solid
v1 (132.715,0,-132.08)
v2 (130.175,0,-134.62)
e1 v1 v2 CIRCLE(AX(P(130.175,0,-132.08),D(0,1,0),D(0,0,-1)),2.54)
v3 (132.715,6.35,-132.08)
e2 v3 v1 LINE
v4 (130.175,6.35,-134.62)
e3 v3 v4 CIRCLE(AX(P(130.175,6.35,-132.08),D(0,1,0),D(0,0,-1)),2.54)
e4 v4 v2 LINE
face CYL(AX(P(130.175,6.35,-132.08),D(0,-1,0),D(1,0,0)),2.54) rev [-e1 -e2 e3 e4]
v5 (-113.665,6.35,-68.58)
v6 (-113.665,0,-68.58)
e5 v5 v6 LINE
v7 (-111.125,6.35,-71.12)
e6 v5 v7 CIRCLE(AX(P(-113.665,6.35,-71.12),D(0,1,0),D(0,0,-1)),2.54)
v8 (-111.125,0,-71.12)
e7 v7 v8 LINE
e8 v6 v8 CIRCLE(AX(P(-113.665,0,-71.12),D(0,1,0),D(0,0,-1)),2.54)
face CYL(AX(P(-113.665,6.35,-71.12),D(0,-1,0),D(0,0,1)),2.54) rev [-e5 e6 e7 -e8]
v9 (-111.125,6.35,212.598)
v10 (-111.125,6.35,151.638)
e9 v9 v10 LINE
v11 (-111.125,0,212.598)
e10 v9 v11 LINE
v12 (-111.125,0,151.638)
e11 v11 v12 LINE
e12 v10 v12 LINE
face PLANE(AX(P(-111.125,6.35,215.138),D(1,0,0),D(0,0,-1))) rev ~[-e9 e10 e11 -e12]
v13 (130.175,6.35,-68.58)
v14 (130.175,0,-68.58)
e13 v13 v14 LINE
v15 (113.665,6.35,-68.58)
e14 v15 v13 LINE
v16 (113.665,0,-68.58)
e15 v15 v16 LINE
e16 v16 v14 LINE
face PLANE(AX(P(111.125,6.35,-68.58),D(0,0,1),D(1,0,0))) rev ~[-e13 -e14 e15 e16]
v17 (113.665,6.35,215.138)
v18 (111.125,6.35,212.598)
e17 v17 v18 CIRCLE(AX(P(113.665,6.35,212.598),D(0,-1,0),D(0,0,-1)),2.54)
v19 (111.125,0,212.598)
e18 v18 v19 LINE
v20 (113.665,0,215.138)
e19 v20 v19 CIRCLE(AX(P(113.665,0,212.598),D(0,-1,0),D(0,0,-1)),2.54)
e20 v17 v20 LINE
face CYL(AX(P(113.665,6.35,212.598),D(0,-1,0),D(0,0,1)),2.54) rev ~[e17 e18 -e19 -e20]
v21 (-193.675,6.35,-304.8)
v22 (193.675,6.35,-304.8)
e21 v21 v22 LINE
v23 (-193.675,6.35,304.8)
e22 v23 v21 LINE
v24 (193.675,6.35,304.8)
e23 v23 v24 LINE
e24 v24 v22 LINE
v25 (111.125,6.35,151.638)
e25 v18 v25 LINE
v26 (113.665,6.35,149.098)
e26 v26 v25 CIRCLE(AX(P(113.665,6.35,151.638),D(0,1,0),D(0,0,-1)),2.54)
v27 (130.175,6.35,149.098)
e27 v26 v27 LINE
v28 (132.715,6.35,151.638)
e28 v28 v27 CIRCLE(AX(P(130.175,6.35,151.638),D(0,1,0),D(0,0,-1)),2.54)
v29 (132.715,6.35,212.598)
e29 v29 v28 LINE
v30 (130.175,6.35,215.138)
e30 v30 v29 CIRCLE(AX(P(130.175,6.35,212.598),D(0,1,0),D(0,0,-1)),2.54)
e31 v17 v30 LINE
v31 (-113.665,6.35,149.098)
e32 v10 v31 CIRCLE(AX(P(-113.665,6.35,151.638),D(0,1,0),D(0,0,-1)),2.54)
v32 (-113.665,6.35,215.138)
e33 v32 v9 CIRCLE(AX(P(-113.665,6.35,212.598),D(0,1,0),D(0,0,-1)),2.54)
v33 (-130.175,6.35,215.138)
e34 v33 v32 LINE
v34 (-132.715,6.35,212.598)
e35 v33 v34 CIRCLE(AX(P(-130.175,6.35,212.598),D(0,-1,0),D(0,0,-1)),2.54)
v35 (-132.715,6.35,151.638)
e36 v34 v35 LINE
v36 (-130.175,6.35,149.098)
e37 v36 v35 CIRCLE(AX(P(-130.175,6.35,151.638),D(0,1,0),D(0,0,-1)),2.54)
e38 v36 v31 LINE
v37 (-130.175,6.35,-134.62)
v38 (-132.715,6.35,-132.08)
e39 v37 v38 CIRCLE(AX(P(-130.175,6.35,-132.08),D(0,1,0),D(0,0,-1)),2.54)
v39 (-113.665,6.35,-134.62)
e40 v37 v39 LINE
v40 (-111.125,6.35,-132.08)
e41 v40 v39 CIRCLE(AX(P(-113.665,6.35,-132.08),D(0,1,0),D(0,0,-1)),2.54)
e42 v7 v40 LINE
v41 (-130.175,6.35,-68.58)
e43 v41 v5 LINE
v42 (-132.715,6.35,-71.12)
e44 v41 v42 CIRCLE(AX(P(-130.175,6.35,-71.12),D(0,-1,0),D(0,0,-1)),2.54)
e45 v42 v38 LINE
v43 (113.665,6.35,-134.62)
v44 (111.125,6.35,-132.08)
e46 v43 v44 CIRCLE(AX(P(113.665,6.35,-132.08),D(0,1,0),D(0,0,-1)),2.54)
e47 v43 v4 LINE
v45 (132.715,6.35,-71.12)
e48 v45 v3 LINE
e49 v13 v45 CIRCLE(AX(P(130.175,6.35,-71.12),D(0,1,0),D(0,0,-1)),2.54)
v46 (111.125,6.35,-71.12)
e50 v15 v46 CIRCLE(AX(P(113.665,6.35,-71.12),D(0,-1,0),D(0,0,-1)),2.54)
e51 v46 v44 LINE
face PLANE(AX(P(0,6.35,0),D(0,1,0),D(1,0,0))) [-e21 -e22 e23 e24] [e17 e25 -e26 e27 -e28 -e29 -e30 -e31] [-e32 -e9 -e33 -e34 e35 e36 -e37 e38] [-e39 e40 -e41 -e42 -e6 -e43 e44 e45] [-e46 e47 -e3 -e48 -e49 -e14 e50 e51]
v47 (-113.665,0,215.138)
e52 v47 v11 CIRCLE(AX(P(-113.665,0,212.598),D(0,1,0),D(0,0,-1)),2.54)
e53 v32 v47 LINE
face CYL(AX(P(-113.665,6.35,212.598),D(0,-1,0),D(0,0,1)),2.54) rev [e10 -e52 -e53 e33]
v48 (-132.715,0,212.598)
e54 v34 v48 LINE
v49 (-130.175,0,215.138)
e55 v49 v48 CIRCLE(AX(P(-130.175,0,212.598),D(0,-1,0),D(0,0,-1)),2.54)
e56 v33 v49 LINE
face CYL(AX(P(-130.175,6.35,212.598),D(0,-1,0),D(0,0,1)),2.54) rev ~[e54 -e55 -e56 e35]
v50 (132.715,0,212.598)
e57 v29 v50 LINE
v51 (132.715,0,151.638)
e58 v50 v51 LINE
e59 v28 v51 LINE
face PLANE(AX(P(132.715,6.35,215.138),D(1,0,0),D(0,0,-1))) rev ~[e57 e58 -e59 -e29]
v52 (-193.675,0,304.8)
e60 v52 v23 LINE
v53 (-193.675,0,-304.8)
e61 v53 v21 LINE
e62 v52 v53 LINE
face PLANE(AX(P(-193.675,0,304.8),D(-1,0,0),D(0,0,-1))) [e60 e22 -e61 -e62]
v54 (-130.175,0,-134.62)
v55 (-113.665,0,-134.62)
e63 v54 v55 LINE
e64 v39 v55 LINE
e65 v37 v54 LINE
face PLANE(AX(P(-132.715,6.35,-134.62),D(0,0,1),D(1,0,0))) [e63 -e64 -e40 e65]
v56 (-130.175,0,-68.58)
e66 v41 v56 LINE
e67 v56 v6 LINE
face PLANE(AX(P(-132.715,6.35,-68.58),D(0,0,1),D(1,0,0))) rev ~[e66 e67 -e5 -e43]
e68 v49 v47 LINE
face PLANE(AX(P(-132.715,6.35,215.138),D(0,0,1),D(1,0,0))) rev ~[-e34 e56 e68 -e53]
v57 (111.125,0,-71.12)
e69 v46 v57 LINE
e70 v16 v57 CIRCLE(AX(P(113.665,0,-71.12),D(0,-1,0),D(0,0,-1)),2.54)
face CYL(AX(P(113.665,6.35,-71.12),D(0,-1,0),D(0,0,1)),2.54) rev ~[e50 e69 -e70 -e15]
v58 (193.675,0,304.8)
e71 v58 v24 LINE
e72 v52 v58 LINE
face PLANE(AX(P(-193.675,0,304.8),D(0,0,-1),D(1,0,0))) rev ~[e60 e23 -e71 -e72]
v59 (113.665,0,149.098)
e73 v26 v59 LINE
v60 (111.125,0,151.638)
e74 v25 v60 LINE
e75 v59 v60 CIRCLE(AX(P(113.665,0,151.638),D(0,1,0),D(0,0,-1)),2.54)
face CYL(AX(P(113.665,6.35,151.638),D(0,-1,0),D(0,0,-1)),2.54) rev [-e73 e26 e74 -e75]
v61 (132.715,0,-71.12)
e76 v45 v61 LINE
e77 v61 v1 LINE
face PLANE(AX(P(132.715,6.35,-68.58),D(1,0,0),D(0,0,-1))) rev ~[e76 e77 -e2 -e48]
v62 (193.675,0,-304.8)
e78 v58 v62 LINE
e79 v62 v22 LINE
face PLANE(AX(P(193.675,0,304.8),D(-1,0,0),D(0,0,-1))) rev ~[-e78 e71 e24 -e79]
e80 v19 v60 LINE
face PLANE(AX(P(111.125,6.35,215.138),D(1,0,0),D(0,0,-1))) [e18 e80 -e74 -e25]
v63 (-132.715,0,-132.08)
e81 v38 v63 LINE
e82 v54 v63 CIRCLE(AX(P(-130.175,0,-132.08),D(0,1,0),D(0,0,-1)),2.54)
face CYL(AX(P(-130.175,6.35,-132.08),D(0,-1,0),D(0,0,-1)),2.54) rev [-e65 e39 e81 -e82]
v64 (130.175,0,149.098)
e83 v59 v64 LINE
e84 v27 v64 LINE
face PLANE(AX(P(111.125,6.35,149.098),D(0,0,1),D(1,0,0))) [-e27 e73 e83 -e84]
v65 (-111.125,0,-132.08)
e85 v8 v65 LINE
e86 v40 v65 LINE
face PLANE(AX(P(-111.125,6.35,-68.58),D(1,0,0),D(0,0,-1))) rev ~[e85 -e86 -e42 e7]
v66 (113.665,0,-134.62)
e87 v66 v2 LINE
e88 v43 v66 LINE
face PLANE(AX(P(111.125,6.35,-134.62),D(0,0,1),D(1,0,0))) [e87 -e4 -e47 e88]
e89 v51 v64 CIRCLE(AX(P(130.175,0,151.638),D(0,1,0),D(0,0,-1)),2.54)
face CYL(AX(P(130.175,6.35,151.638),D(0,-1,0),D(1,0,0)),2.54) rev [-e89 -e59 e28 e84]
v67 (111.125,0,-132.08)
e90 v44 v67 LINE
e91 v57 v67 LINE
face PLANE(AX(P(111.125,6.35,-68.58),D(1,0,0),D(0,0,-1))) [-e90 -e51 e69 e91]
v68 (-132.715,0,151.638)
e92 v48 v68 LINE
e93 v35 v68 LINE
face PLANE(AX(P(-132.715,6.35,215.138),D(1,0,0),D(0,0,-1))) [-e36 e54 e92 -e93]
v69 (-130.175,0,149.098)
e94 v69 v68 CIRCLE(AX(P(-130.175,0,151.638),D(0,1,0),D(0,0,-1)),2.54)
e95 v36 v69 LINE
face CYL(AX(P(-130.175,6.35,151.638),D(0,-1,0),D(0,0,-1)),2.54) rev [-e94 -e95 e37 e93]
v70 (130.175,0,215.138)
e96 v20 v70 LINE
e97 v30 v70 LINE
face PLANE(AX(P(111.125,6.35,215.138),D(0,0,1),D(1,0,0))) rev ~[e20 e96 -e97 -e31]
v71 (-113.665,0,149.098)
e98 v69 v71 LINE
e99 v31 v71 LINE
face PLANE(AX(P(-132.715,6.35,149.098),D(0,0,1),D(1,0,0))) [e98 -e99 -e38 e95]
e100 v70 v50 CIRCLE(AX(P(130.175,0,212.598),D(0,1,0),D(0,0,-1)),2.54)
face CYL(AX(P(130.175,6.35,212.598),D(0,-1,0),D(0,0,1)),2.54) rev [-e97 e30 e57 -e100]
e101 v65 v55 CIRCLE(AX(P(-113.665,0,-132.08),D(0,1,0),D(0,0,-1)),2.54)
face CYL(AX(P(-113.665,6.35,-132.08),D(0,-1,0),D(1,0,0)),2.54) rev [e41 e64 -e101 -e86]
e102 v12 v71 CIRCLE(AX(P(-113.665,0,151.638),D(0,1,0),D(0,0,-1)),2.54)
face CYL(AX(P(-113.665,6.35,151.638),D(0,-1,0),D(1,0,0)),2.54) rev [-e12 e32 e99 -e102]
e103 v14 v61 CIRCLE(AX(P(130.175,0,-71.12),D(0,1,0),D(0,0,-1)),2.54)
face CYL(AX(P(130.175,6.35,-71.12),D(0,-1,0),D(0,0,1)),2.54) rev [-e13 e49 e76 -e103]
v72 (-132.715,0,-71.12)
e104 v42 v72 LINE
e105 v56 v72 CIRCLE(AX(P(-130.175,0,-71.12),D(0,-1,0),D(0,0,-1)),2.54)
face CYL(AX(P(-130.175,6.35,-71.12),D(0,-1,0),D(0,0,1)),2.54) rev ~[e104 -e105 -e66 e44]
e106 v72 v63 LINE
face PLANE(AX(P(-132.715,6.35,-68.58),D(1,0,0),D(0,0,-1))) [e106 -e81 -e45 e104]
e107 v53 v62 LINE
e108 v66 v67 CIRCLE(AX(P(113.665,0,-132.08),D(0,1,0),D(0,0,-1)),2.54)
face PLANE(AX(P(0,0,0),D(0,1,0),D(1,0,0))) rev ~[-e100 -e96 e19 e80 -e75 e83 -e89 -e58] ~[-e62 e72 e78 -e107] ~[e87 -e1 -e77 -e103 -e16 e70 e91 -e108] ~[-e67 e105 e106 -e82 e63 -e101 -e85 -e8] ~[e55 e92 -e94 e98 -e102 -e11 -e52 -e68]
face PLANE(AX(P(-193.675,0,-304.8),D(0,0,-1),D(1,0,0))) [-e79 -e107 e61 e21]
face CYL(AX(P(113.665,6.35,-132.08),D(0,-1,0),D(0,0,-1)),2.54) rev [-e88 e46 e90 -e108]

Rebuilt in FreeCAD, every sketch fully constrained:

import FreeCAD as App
import Part
import Sketcher
from FreeCAD import Vector
Q = App.Units.Quantity


def edges_at(feature, points):
    """Names of the edges that pass closest to the given points."""
    edges = feature.Shape.Edges
    near = lambda p: min(range(len(edges)), key=lambda i: edges[i].distToShape(Part.Vertex(*p))[0])
    return sorted({f"Edge{near(p) + 1}" for p in points})

doc = App.newDocument("Part")
body = doc.addObject("PartDesign::Body", "Body")

# Sketch on XZ plane
sketch1 = body.newObject("Sketcher::SketchObject", "Sketch")
sketch1.AttachmentSupport = (doc.getObject("XZ_Plane"), [""])
sketch1.MapMode = "FlatFace"
sketch1.addGeometry(Part.LineSegment(Vector(-193.675, -304.8, 0), Vector(-193.675, 304.8, 0)), False)
sketch1.addGeometry(Part.LineSegment(Vector(-193.675, 304.8, 0), Vector(193.675, 304.8, 0)), False)
sketch1.addGeometry(Part.LineSegment(Vector(193.675, 304.8, 0), Vector(193.675, -304.8, 0)), False)
sketch1.addGeometry(Part.LineSegment(Vector(193.675, -304.8, 0), Vector(-193.675, -304.8, 0)), False)
sketch1.addConstraint(Sketcher.Constraint("Coincident", 0, 2, 1, 1))
sketch1.addConstraint(Sketcher.Constraint("Coincident", 1, 2, 2, 1))
sketch1.addConstraint(Sketcher.Constraint("Coincident", 2, 2, 3, 1))
sketch1.addConstraint(Sketcher.Constraint("Coincident", 3, 2, 0, 1))
sketch1.addConstraint(Sketcher.Constraint("Vertical", 0))
sketch1.addConstraint(Sketcher.Constraint("Horizontal", 1))
sketch1.addConstraint(Sketcher.Constraint("Vertical", 2))
sketch1.addConstraint(Sketcher.Constraint("Horizontal", 3))
sketch1.addConstraint(Sketcher.Constraint("Symmetric", 0, 2, 2, 2, -1, 1))
sketch1.addConstraint(Sketcher.Constraint("DistanceY", 0, 1, 0, 2, Q("24 in")))
sketch1.addConstraint(Sketcher.Constraint("DistanceX", 1, 1, 1, 2, Q("15.25 in")))
pad1 = body.newObject("PartDesign::Pad", "Pad")
pad1.Profile = sketch1
pad1.Length = Q("0.25 in")
pad1.Reversed = True

# Sketch on XZ plane
sketch2 = body.newObject("Sketcher::SketchObject", "Sketch001")
sketch2.AttachmentSupport = (doc.getObject("XZ_Plane"), [""])
sketch2.MapMode = "FlatFace"
sketch2.AttachmentOffset = App.Placement(Vector(0, 0, -0.25 * 25.4), App.Rotation())
sketch2.addGeometry(Part.LineSegment(Vector(111.125, 149.098, 0), Vector(111.125, 215.138, 0)), False)
sketch2.addGeometry(Part.LineSegment(Vector(111.125, 215.138, 0), Vector(132.715, 215.138, 0)), False)
sketch2.addGeometry(Part.LineSegment(Vector(132.715, 215.138, 0), Vector(132.715, 149.098, 0)), False)
sketch2.addGeometry(Part.LineSegment(Vector(132.715, 149.098, 0), Vector(111.125, 149.098, 0)), False)
sketch2.addGeometry(Part.LineSegment(Vector(111.125, -134.62, 0), Vector(111.125, -68.58, 0)), False)
sketch2.addGeometry(Part.LineSegment(Vector(111.125, -68.58, 0), Vector(132.715, -68.58, 0)), False)
sketch2.addGeometry(Part.LineSegment(Vector(132.715, -68.58, 0), Vector(132.715, -134.62, 0)), False)
sketch2.addGeometry(Part.LineSegment(Vector(132.715, -134.62, 0), Vector(111.125, -134.62, 0)), False)
sketch2.addGeometry(Part.LineSegment(Vector(-132.715, 149.098, 0), Vector(-132.715, 215.138, 0)), False)
sketch2.addGeometry(Part.LineSegment(Vector(-132.715, 215.138, 0), Vector(-111.125, 215.138, 0)), False)
sketch2.addGeometry(Part.LineSegment(Vector(-111.125, 215.138, 0), Vector(-111.125, 149.098, 0)), False)
sketch2.addGeometry(Part.LineSegment(Vector(-111.125, 149.098, 0), Vector(-132.715, 149.098, 0)), False)
sketch2.addGeometry(Part.LineSegment(Vector(-132.715, -134.62, 0), Vector(-132.715, -68.58, 0)), False)
sketch2.addGeometry(Part.LineSegment(Vector(-132.715, -68.58, 0), Vector(-111.125, -68.58, 0)), False)
sketch2.addGeometry(Part.LineSegment(Vector(-111.125, -68.58, 0), Vector(-111.125, -134.62, 0)), False)
sketch2.addGeometry(Part.LineSegment(Vector(-111.125, -134.62, 0), Vector(-132.715, -134.62, 0)), False)
sketch2.addConstraint(Sketcher.Constraint("Coincident", 0, 2, 1, 1))
sketch2.addConstraint(Sketcher.Constraint("Coincident", 1, 2, 2, 1))
sketch2.addConstraint(Sketcher.Constraint("Coincident", 2, 2, 3, 1))
sketch2.addConstraint(Sketcher.Constraint("Coincident", 3, 2, 0, 1))
sketch2.addConstraint(Sketcher.Constraint("Coincident", 4, 2, 5, 1))
sketch2.addConstraint(Sketcher.Constraint("Coincident", 5, 2, 6, 1))
sketch2.addConstraint(Sketcher.Constraint("Coincident", 6, 2, 7, 1))
sketch2.addConstraint(Sketcher.Constraint("Coincident", 7, 2, 4, 1))
sketch2.addConstraint(Sketcher.Constraint("Coincident", 8, 2, 9, 1))
sketch2.addConstraint(Sketcher.Constraint("Coincident", 9, 2, 10, 1))
sketch2.addConstraint(Sketcher.Constraint("Coincident", 10, 2, 11, 1))
sketch2.addConstraint(Sketcher.Constraint("Coincident", 11, 2, 8, 1))
sketch2.addConstraint(Sketcher.Constraint("Coincident", 12, 2, 13, 1))
sketch2.addConstraint(Sketcher.Constraint("Coincident", 13, 2, 14, 1))
sketch2.addConstraint(Sketcher.Constraint("Coincident", 14, 2, 15, 1))
sketch2.addConstraint(Sketcher.Constraint("Coincident", 15, 2, 12, 1))
sketch2.addConstraint(Sketcher.Constraint("Vertical", 0))
sketch2.addConstraint(Sketcher.Constraint("Horizontal", 1))
sketch2.addConstraint(Sketcher.Constraint("Vertical", 2))
sketch2.addConstraint(Sketcher.Constraint("Horizontal", 3))
sketch2.addConstraint(Sketcher.Constraint("Vertical", 4))
sketch2.addConstraint(Sketcher.Constraint("Horizontal", 5))
sketch2.addConstraint(Sketcher.Constraint("Vertical", 6))
sketch2.addConstraint(Sketcher.Constraint("Horizontal", 7))
sketch2.addConstraint(Sketcher.Constraint("Vertical", 8))
sketch2.addConstraint(Sketcher.Constraint("Horizontal", 9))
sketch2.addConstraint(Sketcher.Constraint("Vertical", 10))
sketch2.addConstraint(Sketcher.Constraint("Horizontal", 11))
sketch2.addConstraint(Sketcher.Constraint("Vertical", 12))
sketch2.addConstraint(Sketcher.Constraint("Horizontal", 13))
sketch2.addConstraint(Sketcher.Constraint("Vertical", 14))
sketch2.addConstraint(Sketcher.Constraint("Horizontal", 15))
sketch2.addConstraint(Sketcher.Constraint("Symmetric", 1, 2, 8, 2, -2))
sketch2.addConstraint(Sketcher.Constraint("Symmetric", 3, 2, 10, 2, -2))
sketch2.addConstraint(Sketcher.Constraint("Symmetric", 5, 2, 12, 2, -2))
sketch2.addConstraint(Sketcher.Constraint("Symmetric", 7, 2, 14, 2, -2))
sketch2.addConstraint(Sketcher.Constraint("Vertical", 3, 2, 4, 2))
sketch2.addConstraint(Sketcher.Constraint("Vertical", 2, 2, 5, 2))
sketch2.addConstraint(Sketcher.Constraint("Equal", 2, 4))
sketch2.addConstraint(Sketcher.Constraint("DistanceY", 0, 1, 0, 2, Q("2.6 in")))
sketch2.addConstraint(Sketcher.Constraint("DistanceX", 1, 1, 1, 2, Q("0.85 in")))
sketch2.addConstraint(Sketcher.Constraint("DistanceY", 4, 2, -1, 1, Q("2.7 in")))
sketch2.addConstraint(Sketcher.Constraint("DistanceX", 8, 2, 0, 2, Q("9.6 in")))
sketch2.addConstraint(Sketcher.Constraint("DistanceY", -1, 1, 0, 2, Q("8.47 in")))
pocket1 = body.newObject("PartDesign::Pocket", "Pocket")
pocket1.Profile = sketch2
pocket1.Type = "ThroughAll"
pocket1.Reversed = True
doc.recompute()

fillet = body.newObject("PartDesign::Fillet", "Fillet")
fillet.Base = (pocket1, edges_at(pocket1, [
    (132.715, 3.175, -134.62),
    (132.715, 3.175, -68.58),
    (111.125, 3.175, -68.58),
    (111.125, 3.175, -134.62),
    (-111.125, 3.175, 215.138),
    (-132.715, 3.175, 215.138),
    (-132.715, 3.175, 149.098),
    (-111.125, 3.175, 149.098),
    (-111.125, 3.175, -68.58),
    (-132.715, 3.175, -68.58),
    (-132.715, 3.175, -134.62),
    (-111.125, 3.175, -134.62),
    (132.715, 3.175, 149.098),
    (132.715, 3.175, 215.138),
    (111.125, 3.175, 215.138),
    (111.125, 3.175, 149.098),
]))
fillet.Radius = Q("0.1 in")

doc.recompute()
